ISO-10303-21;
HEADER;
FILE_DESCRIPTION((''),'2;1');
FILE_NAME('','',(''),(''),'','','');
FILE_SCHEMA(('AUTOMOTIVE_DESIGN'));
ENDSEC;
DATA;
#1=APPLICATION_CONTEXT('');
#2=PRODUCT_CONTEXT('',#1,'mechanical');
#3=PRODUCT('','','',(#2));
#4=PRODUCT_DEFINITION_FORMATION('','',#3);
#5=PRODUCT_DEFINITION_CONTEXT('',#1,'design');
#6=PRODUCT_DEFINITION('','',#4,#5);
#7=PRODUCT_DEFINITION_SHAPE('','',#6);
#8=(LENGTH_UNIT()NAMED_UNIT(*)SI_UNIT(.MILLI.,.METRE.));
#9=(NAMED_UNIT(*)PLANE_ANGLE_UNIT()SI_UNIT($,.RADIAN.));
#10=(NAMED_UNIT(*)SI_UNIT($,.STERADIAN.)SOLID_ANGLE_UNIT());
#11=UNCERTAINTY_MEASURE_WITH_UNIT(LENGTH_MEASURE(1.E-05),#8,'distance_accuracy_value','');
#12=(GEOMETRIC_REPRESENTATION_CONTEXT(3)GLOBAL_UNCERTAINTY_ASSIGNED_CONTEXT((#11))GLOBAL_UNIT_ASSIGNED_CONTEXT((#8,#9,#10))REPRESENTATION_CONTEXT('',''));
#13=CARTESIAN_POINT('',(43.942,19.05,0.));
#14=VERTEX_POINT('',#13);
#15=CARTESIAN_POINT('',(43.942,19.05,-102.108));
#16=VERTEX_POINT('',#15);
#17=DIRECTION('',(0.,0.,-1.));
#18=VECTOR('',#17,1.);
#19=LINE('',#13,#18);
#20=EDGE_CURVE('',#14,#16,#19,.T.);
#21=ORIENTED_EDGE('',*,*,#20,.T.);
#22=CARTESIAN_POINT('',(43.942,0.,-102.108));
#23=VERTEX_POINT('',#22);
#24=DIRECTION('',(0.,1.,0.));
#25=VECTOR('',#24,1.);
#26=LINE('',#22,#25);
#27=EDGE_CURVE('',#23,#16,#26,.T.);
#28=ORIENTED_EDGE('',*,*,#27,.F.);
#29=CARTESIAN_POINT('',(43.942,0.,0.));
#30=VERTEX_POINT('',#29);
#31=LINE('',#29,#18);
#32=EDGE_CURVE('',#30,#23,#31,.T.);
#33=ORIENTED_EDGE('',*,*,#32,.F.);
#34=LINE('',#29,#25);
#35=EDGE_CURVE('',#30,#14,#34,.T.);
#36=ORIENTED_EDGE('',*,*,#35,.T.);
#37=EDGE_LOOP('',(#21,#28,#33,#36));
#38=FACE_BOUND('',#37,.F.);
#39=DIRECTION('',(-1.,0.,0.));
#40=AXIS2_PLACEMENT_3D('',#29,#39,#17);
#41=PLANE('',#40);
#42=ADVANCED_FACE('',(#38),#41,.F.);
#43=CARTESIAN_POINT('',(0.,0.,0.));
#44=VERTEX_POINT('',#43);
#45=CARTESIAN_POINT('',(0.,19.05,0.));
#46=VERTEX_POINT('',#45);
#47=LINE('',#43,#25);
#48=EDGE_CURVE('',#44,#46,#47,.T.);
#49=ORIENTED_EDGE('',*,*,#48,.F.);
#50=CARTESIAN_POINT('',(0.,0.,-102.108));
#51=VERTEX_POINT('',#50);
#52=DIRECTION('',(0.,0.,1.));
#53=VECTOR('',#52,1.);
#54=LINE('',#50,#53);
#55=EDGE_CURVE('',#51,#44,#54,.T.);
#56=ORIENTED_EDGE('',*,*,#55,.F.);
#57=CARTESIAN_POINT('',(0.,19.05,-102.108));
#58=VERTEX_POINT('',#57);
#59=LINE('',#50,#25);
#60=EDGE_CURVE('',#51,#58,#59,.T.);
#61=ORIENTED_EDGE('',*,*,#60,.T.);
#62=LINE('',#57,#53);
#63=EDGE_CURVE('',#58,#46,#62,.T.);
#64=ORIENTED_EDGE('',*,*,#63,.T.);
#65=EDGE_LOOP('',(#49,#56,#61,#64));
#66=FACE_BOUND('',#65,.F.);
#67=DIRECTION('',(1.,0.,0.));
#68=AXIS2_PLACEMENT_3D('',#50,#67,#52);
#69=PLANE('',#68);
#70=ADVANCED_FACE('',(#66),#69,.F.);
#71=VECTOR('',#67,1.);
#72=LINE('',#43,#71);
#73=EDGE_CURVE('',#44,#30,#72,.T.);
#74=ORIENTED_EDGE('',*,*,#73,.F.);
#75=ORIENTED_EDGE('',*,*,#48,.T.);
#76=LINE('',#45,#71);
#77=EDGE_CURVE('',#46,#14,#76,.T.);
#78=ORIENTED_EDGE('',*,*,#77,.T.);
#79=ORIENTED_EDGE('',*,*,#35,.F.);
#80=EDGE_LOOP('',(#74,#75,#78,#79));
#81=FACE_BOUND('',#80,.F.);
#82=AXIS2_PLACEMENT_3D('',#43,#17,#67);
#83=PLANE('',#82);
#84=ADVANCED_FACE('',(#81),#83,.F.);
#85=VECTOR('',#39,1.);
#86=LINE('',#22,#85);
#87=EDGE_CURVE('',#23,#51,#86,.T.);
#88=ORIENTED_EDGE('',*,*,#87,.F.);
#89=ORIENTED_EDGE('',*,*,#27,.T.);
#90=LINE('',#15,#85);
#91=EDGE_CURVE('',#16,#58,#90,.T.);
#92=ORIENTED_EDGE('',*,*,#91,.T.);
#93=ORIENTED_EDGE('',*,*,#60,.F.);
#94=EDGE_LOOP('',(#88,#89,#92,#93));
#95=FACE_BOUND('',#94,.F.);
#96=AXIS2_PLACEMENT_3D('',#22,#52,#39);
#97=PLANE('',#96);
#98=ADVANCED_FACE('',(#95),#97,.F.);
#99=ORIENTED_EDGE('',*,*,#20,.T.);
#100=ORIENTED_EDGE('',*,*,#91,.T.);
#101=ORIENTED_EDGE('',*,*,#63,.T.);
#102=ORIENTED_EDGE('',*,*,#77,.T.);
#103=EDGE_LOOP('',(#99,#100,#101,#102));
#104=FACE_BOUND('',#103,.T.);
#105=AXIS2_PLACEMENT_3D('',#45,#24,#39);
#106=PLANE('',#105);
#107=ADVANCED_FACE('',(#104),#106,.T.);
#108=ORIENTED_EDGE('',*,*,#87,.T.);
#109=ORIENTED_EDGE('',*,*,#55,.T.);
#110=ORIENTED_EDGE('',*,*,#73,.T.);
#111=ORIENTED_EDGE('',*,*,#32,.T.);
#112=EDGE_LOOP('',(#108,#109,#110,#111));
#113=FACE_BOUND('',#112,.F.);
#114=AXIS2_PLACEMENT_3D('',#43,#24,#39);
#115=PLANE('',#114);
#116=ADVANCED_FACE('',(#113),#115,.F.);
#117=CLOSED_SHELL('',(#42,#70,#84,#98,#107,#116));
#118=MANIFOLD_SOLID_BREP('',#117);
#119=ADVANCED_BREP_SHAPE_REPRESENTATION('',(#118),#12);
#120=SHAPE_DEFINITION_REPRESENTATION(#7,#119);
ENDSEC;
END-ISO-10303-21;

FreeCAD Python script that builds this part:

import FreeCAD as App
import Part
import Sketcher

V = App.Vector
Q = App.Units.Quantity

doc = App.newDocument("Part")
params = doc.addObject("Spreadsheet::Sheet", "Params")
for row, (alias, value) in enumerate([
    ("sketch1_width", "1.73 in"),
    ("sketch1_height", "4.02 in"),
    ("pad1_length", "0.75 in"),
], start=1):
    params.set(f"A{row}", alias)
    params.set(f"B{row}", "=" + value)
    params.setAlias(f"B{row}", alias)

body = doc.addObject("PartDesign::Body", "Body")

# Sketch on XZ plane
sketch1 = body.newObject("Sketcher::SketchObject", "Sketch")
sketch1.AttachmentSupport = (doc.getObject("XZ_Plane"), [""])
sketch1.MapMode = "FlatFace"
sketch1.addGeometry(Part.LineSegment(V(0, -102.108, 0), V(0, 0, 0)), False)
sketch1.addGeometry(Part.LineSegment(V(0, 0, 0), V(43.942, 0, 0)), False)
sketch1.addGeometry(Part.LineSegment(V(43.942, 0, 0), V(43.942, -102.108, 0)), False)
sketch1.addGeometry(Part.LineSegment(V(43.942, -102.108, 0), V(0, -102.108, 0)), False)
sketch1.addConstraint(Sketcher.Constraint("Coincident", 0, 2, 1, 1))
sketch1.addConstraint(Sketcher.Constraint("Coincident", 1, 2, 2, 1))
sketch1.addConstraint(Sketcher.Constraint("Coincident", 2, 2, 3, 1))
sketch1.addConstraint(Sketcher.Constraint("Coincident", 3, 2, 0, 1))
sketch1.addConstraint(Sketcher.Constraint("Vertical", 0))
sketch1.addConstraint(Sketcher.Constraint("Horizontal", 1))
sketch1.addConstraint(Sketcher.Constraint("Vertical", 2))
sketch1.addConstraint(Sketcher.Constraint("Horizontal", 3))
sketch1.addConstraint(Sketcher.Constraint("Coincident", 0, 2, -1, 1))
sketch1.addConstraint(Sketcher.Constraint("DistanceX", 1, 1, 1, 2, Q("1.73 in")))
sketch1.addConstraint(Sketcher.Constraint("DistanceY", 0, 1, 0, 2, Q("4.02 in")))
sketch1.setExpression("Constraints[9]", "Params.sketch1_width")
sketch1.setExpression("Constraints[10]", "Params.sketch1_height")
pad1 = body.newObject("PartDesign::Pad", "Pad")
pad1.Profile = sketch1
pad1.setExpression("Length", "Params.pad1_length")
pad1.Reversed = True

doc.recompute()
